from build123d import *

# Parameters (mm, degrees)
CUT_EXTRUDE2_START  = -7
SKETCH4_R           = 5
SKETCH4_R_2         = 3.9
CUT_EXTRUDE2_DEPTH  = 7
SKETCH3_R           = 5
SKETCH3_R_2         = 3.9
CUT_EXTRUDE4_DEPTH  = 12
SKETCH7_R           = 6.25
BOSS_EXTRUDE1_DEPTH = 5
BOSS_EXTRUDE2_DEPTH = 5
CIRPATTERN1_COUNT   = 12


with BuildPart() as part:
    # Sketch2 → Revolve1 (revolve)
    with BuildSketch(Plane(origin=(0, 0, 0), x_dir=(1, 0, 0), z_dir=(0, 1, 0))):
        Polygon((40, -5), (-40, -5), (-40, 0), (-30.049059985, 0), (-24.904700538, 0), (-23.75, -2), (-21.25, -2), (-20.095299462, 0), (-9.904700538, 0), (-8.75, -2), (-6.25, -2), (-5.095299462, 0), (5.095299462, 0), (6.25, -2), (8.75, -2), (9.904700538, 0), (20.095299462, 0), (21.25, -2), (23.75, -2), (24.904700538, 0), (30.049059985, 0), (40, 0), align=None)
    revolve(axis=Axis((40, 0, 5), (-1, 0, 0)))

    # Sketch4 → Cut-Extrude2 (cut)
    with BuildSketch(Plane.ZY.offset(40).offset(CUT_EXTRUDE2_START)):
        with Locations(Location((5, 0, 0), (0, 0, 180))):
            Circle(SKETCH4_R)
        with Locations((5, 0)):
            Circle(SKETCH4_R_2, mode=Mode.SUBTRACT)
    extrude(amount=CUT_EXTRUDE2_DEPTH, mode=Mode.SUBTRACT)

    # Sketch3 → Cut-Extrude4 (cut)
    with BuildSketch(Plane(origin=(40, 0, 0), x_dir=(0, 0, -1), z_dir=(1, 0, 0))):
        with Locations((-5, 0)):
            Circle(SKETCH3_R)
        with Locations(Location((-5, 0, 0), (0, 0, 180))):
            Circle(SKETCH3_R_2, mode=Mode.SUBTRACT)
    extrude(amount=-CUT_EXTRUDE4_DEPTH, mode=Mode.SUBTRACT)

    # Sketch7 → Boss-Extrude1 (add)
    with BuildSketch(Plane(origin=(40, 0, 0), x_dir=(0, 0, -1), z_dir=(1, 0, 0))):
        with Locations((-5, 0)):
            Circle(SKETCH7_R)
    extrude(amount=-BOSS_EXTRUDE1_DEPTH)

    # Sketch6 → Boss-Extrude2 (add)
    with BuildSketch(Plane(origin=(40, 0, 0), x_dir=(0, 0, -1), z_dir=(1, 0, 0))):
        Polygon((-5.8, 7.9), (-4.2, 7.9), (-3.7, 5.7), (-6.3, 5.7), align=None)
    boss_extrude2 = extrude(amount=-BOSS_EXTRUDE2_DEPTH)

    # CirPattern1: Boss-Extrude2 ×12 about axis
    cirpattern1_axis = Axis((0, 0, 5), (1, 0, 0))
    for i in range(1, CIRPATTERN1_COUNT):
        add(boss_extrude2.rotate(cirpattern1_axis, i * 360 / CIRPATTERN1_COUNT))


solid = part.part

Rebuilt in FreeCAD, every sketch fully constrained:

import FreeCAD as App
import Part
import Sketcher
from FreeCAD import Vector
Q = App.Units.Quantity


def add_polygon(sketch, points):
    """Adds a closed chain of lines whose ends are joined by coincident constraints."""
    first, n = sketch.GeometryCount, len(points)
    for a, b in zip(points, points[1:] + points[:1]):
        sketch.addGeometry(Part.LineSegment(App.Vector(*a, 0), App.Vector(*b, 0)), False)
    for i in range(n):
        sketch.addConstraint(Sketcher.Constraint("Coincident", first + i, 2, first + (i + 1) % n, 1))

doc = App.newDocument("Part")
body = doc.addObject("PartDesign::Body", "Body")

# Sketch on XZ plane
sketch1 = doc.addObject("Sketcher::SketchObject", "Sketch")
body.addObject(sketch1)
sketch1.AttachmentSupport = (doc.XZ_Plane, [""])
sketch1.MapMode = "FlatFace"
add_polygon(sketch1, [(-40, 5), (40, 5), (40, 0), (24.9, 0), (23.8, 2), (21.2, 2), (20.1, 0), (9.9, 0), (8.8, 2), (6.2, 2), (5.1, 0), (-5.1, 0), (-6.2, 2), (-8.8, 2), (-9.9, 0), (-20.1, 0), (-21.2, 2), (-23.8, 2), (-24.9, 0), (-40, 0)])  # lines 0-19
sketch1.addGeometry(Part.LineSegment(Vector(40, 5, 0), Vector(-40, 5, 0)), True)  # axis
sketch1.addConstraint(Sketcher.Constraint("Horizontal", 0))
sketch1.addConstraint(Sketcher.Constraint("Vertical", 1))
sketch1.addConstraint(Sketcher.Constraint("Horizontal", 2))
sketch1.addConstraint(Sketcher.Constraint("Horizontal", 4))
sketch1.addConstraint(Sketcher.Constraint("Horizontal", 6))
sketch1.addConstraint(Sketcher.Constraint("Horizontal", 8))
sketch1.addConstraint(Sketcher.Constraint("Horizontal", 10))
sketch1.addConstraint(Sketcher.Constraint("Horizontal", 12))
sketch1.addConstraint(Sketcher.Constraint("Horizontal", 14))
sketch1.addConstraint(Sketcher.Constraint("Horizontal", 16))
sketch1.addConstraint(Sketcher.Constraint("Horizontal", 18))
sketch1.addConstraint(Sketcher.Constraint("Vertical", 19))
sketch1.addConstraint(Sketcher.Constraint("Horizontal", 20))
sketch1.addConstraint(Sketcher.Constraint("Coincident", 20, 1, 0, 2))
sketch1.addConstraint(Sketcher.Constraint("Symmetric", 9, 2, 10, 2, -1, 1))
sketch1.addConstraint(Sketcher.Constraint("Symmetric", 6, 2, 13, 2, -1, 1))
sketch1.addConstraint(Sketcher.Constraint("Symmetric", 2, 2, 17, 2, -1, 1))
sketch1.addConstraint(Sketcher.Constraint("Symmetric", 8, 2, 11, 2, -2))
sketch1.addConstraint(Sketcher.Constraint("Symmetric", 5, 2, 14, 2, -2))
sketch1.addConstraint(Sketcher.Constraint("Symmetric", 4, 2, 15, 2, -2))
sketch1.addConstraint(Sketcher.Constraint("Symmetric", 1, 2, 18, 2, -2))
sketch1.addConstraint(Sketcher.Constraint("Parallel", 3, 7))
sketch1.addConstraint(Sketcher.Constraint("Parallel", 5, 9))
sketch1.addConstraint(Sketcher.Constraint("Parallel", 7, 11))
sketch1.addConstraint(Sketcher.Constraint("Parallel", 9, 13))
sketch1.addConstraint(Sketcher.Constraint("Parallel", 13, 17))
sketch1.addConstraint(Sketcher.Constraint("Horizontal", 4, 2, 7, 2))
sketch1.addConstraint(Sketcher.Constraint("Vertical", 18, 2, 20, 2))
sketch1.addConstraint(Sketcher.Constraint("Equal", 4, 8))
sketch1.addConstraint(Sketcher.Constraint("Equal", 6, 10))
sketch1.addConstraint(Sketcher.Constraint("DistanceX", 0, 1, 0, 2, 80.0))
sketch1.addConstraint(Sketcher.Constraint("DistanceY", 1, 2, 1, 1, 5.0))
sketch1.addConstraint(Sketcher.Constraint("Angle", 3, Q("120 deg")))
sketch1.addConstraint(Sketcher.Constraint("DistanceX", 4, 2, 4, 1, 2.5))
sketch1.addConstraint(Sketcher.Constraint("DistanceY", -1, 1, 3, 2, 2.0))
sketch1.addConstraint(Sketcher.Constraint("DistanceX", 6, 2, 2, 2, 15.0))
revolution = doc.addObject("PartDesign::Revolution", "Revolution")
body.addObject(revolution)
revolution.Profile = sketch1
revolution.ReferenceAxis = (sketch1, ["Axis0"])
revolution.Angle = 360

# Sketch on YZ plane
sketch2 = doc.addObject("Sketcher::SketchObject", "Sketch001")
body.addObject(sketch2)
sketch2.AttachmentSupport = (doc.YZ_Plane, [""])
sketch2.MapMode = "FlatFace"
sketch2.AttachmentOffset = App.Placement(Vector(0, 0, -33), App.Rotation())
sketch2.addGeometry(Part.Circle(Vector(0, 5, 0), Vector(0, 0, 1), 5), False)
sketch2.addGeometry(Part.Circle(Vector(0, 5, 0), Vector(0, 0, 1), 3.9), False)
sketch2.addConstraint(Sketcher.Constraint("Coincident", 1, 3, 0, 3))
sketch2.addConstraint(Sketcher.Constraint("PointOnObject", 0, 3, -2))
sketch2.addConstraint(Sketcher.Constraint("Diameter", 0, 10.0))
sketch2.addConstraint(Sketcher.Constraint("Diameter", 1, 7.8))
sketch2.addConstraint(Sketcher.Constraint("DistanceY", -1, 1, 0, 3, 5.0))
pocket1 = doc.addObject("PartDesign::Pocket", "Pocket")
body.addObject(pocket1)
pocket1.Profile = sketch2
pocket1.Length = 7

# Sketch on YZ plane
sketch3 = doc.addObject("Sketcher::SketchObject", "Sketch002")
body.addObject(sketch3)
sketch3.AttachmentSupport = (doc.YZ_Plane, [""])
sketch3.MapMode = "FlatFace"
sketch3.AttachmentOffset = App.Placement(Vector(0, 0, 40), App.Rotation())
sketch3.addGeometry(Part.Circle(Vector(0, 5, 0), Vector(0, 0, 1), 5), False)
sketch3.addGeometry(Part.Circle(Vector(0, 5, 0), Vector(0, 0, 1), 3.9), False)
sketch3.addConstraint(Sketcher.Constraint("Coincident", 1, 3, 0, 3))
sketch3.addConstraint(Sketcher.Constraint("PointOnObject", 0, 3, -2))
sketch3.addConstraint(Sketcher.Constraint("Diameter", 0, 10.0))
sketch3.addConstraint(Sketcher.Constraint("Diameter", 1, 7.8))
sketch3.addConstraint(Sketcher.Constraint("DistanceY", -1, 1, 0, 3, 5.0))
pocket2 = doc.addObject("PartDesign::Pocket", "Pocket001")
body.addObject(pocket2)
pocket2.Profile = sketch3
pocket2.Length = 12

# Sketch on YZ plane
sketch4 = doc.addObject("Sketcher::SketchObject", "Sketch003")
body.addObject(sketch4)
sketch4.AttachmentSupport = (doc.YZ_Plane, [""])
sketch4.MapMode = "FlatFace"
sketch4.AttachmentOffset = App.Placement(Vector(0, 0, 40), App.Rotation())
sketch4.addGeometry(Part.Circle(Vector(0, 5, 0), Vector(0, 0, 1), 6), False)
sketch4.addConstraint(Sketcher.Constraint("PointOnObject", 0, 3, -2))
sketch4.addConstraint(Sketcher.Constraint("Diameter", 0, 12.5))
sketch4.addConstraint(Sketcher.Constraint("DistanceY", -1, 1, 0, 3, 5.0))
pad1 = doc.addObject("PartDesign::Pad", "Pad")
body.addObject(pad1)
pad1.Profile = sketch4
pad1.Length = 5
pad1.Reversed = True

# Sketch on YZ plane
sketch5 = doc.addObject("Sketcher::SketchObject", "Sketch004")
body.addObject(sketch5)
sketch5.AttachmentSupport = (doc.YZ_Plane, [""])
sketch5.MapMode = "FlatFace"
sketch5.AttachmentOffset = App.Placement(Vector(0, 0, 40), App.Rotation())
add_polygon(sketch5, [(7.9, 4.2), (7.9, 5.8), (5.7, 6.3), (5.7, 3.7)])  # lines 0-3
sketch5.addConstraint(Sketcher.Constraint("Vertical", 0))
sketch5.addConstraint(Sketcher.Constraint("Vertical", 2))
sketch5.addConstraint(Sketcher.Constraint("Equal", 1, 3))
sketch5.addConstraint(Sketcher.Constraint("DistanceY", 0, 1, 0, 2, 1.6))
sketch5.addConstraint(Sketcher.Constraint("DistanceY", 2, 2, 2, 1, 2.6))
sketch5.addConstraint(Sketcher.Constraint("DistanceX", -1, 1, 0, 2, 7.9))
sketch5.addConstraint(Sketcher.Constraint("DistanceY", -1, 1, 0, 2, 5.8))
sketch5.addConstraint(Sketcher.Constraint("DistanceX", -1, 1, 1, 2, 5.7))
pad2 = doc.addObject("PartDesign::Pad", "Pad001")
body.addObject(pad2)
pad2.Profile = sketch5
pad2.Length = 5
pad2.Reversed = True
doc.recompute()

datumline = doc.addObject("PartDesign::Line", "DatumLine")
body.addObject(datumline)
datumline.Placement = App.Placement(Vector(0, 0, 5), App.Rotation(Vector(0, 0, 1), Vector(1, 0, 0)))
polarpattern = doc.addObject("PartDesign::PolarPattern", "PolarPattern")
body.addObject(polarpattern)
polarpattern.Originals = [pad2]
polarpattern.Axis = (datumline, [""])
polarpattern.Angle = 360
polarpattern.Occurrences = 12
body.Tip = polarpattern

doc.recompute()
